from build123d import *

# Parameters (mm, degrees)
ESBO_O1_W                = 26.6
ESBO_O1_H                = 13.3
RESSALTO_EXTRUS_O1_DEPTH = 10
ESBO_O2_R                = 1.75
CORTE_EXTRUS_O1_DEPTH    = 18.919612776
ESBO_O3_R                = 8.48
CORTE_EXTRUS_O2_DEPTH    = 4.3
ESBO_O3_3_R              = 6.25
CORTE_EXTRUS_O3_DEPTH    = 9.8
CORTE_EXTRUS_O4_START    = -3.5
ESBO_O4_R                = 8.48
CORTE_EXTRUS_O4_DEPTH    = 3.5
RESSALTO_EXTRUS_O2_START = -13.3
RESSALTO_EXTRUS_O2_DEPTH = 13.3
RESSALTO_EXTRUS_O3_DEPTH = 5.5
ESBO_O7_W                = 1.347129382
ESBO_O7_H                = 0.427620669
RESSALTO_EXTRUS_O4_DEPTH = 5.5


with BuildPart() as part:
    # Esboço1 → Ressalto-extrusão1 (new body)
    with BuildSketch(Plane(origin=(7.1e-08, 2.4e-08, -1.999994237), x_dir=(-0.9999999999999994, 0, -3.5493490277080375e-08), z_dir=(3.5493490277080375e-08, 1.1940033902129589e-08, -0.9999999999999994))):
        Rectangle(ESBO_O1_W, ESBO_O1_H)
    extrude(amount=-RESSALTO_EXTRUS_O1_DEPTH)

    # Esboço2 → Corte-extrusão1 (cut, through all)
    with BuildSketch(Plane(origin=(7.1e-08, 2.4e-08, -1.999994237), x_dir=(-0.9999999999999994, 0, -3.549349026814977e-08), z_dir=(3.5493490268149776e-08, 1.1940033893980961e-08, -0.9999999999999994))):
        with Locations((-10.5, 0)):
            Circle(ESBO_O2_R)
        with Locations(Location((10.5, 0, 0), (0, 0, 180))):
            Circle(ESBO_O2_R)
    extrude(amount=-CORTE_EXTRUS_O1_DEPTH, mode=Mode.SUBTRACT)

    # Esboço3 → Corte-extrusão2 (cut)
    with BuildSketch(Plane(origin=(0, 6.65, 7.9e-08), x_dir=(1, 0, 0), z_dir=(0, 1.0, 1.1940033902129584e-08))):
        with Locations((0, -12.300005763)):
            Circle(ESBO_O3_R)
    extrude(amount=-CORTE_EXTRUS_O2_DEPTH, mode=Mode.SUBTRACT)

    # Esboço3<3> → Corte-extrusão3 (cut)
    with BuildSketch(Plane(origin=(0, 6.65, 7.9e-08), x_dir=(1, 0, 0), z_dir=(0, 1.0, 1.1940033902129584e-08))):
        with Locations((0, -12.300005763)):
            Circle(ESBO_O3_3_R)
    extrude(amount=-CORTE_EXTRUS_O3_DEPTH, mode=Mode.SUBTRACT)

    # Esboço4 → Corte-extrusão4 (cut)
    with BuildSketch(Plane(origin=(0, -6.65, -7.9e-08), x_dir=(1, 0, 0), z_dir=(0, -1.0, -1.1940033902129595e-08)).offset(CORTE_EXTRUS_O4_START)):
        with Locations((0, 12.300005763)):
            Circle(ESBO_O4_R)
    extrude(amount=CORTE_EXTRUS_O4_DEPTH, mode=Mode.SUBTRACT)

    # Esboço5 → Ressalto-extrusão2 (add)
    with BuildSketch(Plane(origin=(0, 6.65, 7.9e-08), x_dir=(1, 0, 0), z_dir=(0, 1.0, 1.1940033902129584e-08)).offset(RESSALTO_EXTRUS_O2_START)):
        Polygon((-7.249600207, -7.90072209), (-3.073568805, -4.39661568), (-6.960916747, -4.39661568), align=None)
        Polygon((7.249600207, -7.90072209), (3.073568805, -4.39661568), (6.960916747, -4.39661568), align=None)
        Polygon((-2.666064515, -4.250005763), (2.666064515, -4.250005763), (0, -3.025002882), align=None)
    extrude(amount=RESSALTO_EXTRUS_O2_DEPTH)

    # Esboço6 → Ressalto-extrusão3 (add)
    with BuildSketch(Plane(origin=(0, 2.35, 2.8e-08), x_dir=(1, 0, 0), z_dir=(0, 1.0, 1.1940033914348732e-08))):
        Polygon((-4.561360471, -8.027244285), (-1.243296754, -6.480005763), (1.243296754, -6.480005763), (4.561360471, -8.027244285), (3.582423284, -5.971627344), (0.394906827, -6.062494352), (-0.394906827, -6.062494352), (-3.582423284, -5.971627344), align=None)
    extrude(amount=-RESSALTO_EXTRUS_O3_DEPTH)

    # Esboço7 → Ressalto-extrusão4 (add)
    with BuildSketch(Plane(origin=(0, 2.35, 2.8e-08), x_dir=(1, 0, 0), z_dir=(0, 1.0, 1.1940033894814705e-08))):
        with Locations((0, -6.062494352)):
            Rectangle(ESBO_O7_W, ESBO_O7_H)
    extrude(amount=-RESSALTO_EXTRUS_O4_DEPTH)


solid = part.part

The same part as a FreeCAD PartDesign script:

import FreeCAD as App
import Part
import Sketcher
Q = App.Units.Quantity


def add_polygon(sketch, points):
    """Adds a closed chain of lines whose ends are joined by coincident constraints."""
    first, n = sketch.GeometryCount, len(points)
    for a, b in zip(points, points[1:] + points[:1]):
        sketch.addGeometry(Part.LineSegment(App.Vector(*a, 0), App.Vector(*b, 0)), False)
    for i in range(n):
        sketch.addConstraint(Sketcher.Constraint("Coincident", first + i, 2, first + (i + 1) % n, 1))

doc = App.newDocument("Part")
body = doc.addObject("PartDesign::Body", "Body")

sketch1 = body.newObject("Sketcher::SketchObject", "Sketch")
sketch1.AttachmentSupport = (doc.getObject("XY_Plane"), [""])
sketch1.MapMode = "FlatFace"
sketch1.AttachmentOffset = App.Placement(App.Vector(0, 0, -1.999994), App.Rotation())
add_polygon(sketch1, [(13, 7), (13, -7), (-13, -7), (-13, 7)])
sketch1.addConstraint([
    Sketcher.Constraint("Vertical", 0),
    Sketcher.Constraint("Horizontal", 1),
    Sketcher.Constraint("Vertical", 2),
    Sketcher.Constraint("Horizontal", 3),
    Sketcher.Constraint("Symmetric", 0, 2, 2, 2, -1, 1),
    Sketcher.Constraint("DistanceX", 1, 2, 1, 1, Q("26.6 mm")),
    Sketcher.Constraint("DistanceY", 0, 2, 0, 1, Q("13.3 mm")),
])
pad1 = body.newObject("PartDesign::Pad", "Pad")
pad1.Profile = sketch1
pad1.Length = 10

sketch2 = body.newObject("Sketcher::SketchObject", "Sketch001")
sketch2.AttachmentSupport = (doc.getObject("XY_Plane"), [""])
sketch2.MapMode = "FlatFace"
sketch2.AttachmentOffset = App.Placement(App.Vector(0, 0, -1.999994), App.Rotation())
sketch2.addGeometry([
    Part.Circle(App.Vector(10.5, 0, 0), App.Vector(0, 0, 1), 1.8),
    Part.Circle(App.Vector(-10.5, 0, 0), App.Vector(0, 0, 1), 1.8),
], False)
sketch2.addConstraint([
    Sketcher.Constraint("Equal", 0, 1),
    Sketcher.Constraint("Symmetric", 0, 3, 1, 3, -1, 1),
    Sketcher.Constraint("PointOnObject", 0, 3, -1),
    Sketcher.Constraint("Diameter", 0, Q("3.5 mm")),
    Sketcher.Constraint("DistanceX", 1, 3, 0, 3, Q("21 mm")),
])
pocket1 = body.newObject("PartDesign::Pocket", "Pocket")
pocket1.Profile = sketch2
pocket1.Type = "ThroughAll"
pocket1.Reversed = True

sketch3 = body.newObject("Sketcher::SketchObject", "Sketch002")
sketch3.AttachmentSupport = (doc.getObject("XZ_Plane"), [""])
sketch3.MapMode = "FlatFace"
sketch3.AttachmentOffset = App.Placement(App.Vector(0, 0, -6.65), App.Rotation())
sketch3.addGeometry(Part.Circle(App.Vector(0, 12, 0), App.Vector(0, 0, 1), 8), False)
sketch3.addConstraint([
    Sketcher.Constraint("PointOnObject", 0, 3, -2),
    Sketcher.Constraint("Diameter", 0, Q("16.96 mm")),
    Sketcher.Constraint("DistanceY", -1, 1, 0, 3, Q("12.300006 mm")),
])
pocket2 = body.newObject("PartDesign::Pocket", "Pocket001")
pocket2.Profile = sketch3
pocket2.Length = 4.3
pocket2.Reversed = True

sketch4 = body.newObject("Sketcher::SketchObject", "Sketch003")
sketch4.AttachmentSupport = (doc.getObject("XZ_Plane"), [""])
sketch4.MapMode = "FlatFace"
sketch4.AttachmentOffset = App.Placement(App.Vector(0, 0, -6.65), App.Rotation())
sketch4.addGeometry(Part.Circle(App.Vector(0, 12, 0), App.Vector(0, 0, 1), 6), False)
sketch4.addConstraint([
    Sketcher.Constraint("PointOnObject", 0, 3, -2),
    Sketcher.Constraint("Diameter", 0, Q("12.5 mm")),
    Sketcher.Constraint("DistanceY", -1, 1, 0, 3, Q("12.300006 mm")),
])
pocket3 = body.newObject("PartDesign::Pocket", "Pocket002")
pocket3.Profile = sketch4
pocket3.Length = 9.8
pocket3.Reversed = True

sketch5 = body.newObject("Sketcher::SketchObject", "Sketch004")
sketch5.AttachmentSupport = (doc.getObject("XZ_Plane"), [""])
sketch5.MapMode = "FlatFace"
sketch5.AttachmentOffset = App.Placement(App.Vector(0, 0, 3.15), App.Rotation())
sketch5.addGeometry(Part.Circle(App.Vector(0, 12, 0), App.Vector(0, 0, 1), 8), False)
sketch5.addConstraint([
    Sketcher.Constraint("PointOnObject", 0, 3, -2),
    Sketcher.Constraint("Diameter", 0, Q("16.96 mm")),
    Sketcher.Constraint("DistanceY", -1, 1, 0, 3, Q("12.300006 mm")),
])
pocket4 = body.newObject("PartDesign::Pocket", "Pocket003")
pocket4.Profile = sketch5
pocket4.Length = 3.5
pocket4.Reversed = True

sketch6 = body.newObject("Sketcher::SketchObject", "Sketch005")
sketch6.AttachmentSupport = (doc.getObject("XZ_Plane"), [""])
sketch6.MapMode = "FlatFace"
sketch6.AttachmentOffset = App.Placement(App.Vector(0, 0, 6.65), App.Rotation())
add_polygon(sketch6, [(-7.2, 7.9), (-3.1, 4.4), (-7, 4.4)])
add_polygon(sketch6, [(3.1, 4.4), (7.2, 7.9), (7, 4.4)])
add_polygon(sketch6, [(-2.7, 4.3), (2.7, 4.3), (0, 3)])
sketch6.addConstraint([
    Sketcher.Constraint("Horizontal", 1),
    Sketcher.Constraint("Horizontal", 5),
    Sketcher.Constraint("Horizontal", 6),
    Sketcher.Constraint("Symmetric", 2, 2, 3, 2, -2),
    Sketcher.Constraint("Symmetric", 1, 2, 4, 2, -2),
    Sketcher.Constraint("PointOnObject", 7, 2, -2),
    Sketcher.Constraint("Equal", 1, 5),
    Sketcher.Constraint("Equal", 7, 8),
    Sketcher.Constraint("Angle", 0, Q("-40 deg")),
    Sketcher.Constraint("DistanceX", 6, 1, 6, 2, Q("5.332129 mm")),
    Sketcher.Constraint("DistanceX", 2, 2, -1, 1, Q("7.2496 mm")),
    Sketcher.Constraint("Distance", 0, Q("5.451422 mm")),
    Sketcher.Constraint("Distance", 7, Q("2.93403 mm")),
    Sketcher.Constraint("DistanceX", 1, 2, 1, 1, Q("3.887348 mm")),
    Sketcher.Constraint("DistanceY", 6, 2, 5, 2, Q("0.14661 mm")),
    Sketcher.Constraint("DistanceY", -1, 1, 0, 2, Q("4.396616 mm")),
])
pad2 = body.newObject("PartDesign::Pad", "Pad001")
pad2.Profile = sketch6
pad2.Length = 13.3
pad2.Reversed = True

sketch7 = body.newObject("Sketcher::SketchObject", "Sketch006")
sketch7.AttachmentSupport = (doc.getObject("XZ_Plane"), [""])
sketch7.MapMode = "FlatFace"
sketch7.AttachmentOffset = App.Placement(App.Vector(0, 0, -2.35), App.Rotation())
add_polygon(sketch7, [(-4.6, 8), (-1.2, 6.5), (1.2, 6.5), (4.6, 8), (3.6, 6), (0.4, 6.1), (-0.4, 6.1), (-3.6, 6)])
sketch7.addConstraint([
    Sketcher.Constraint("Horizontal", 1),
    Sketcher.Constraint("Horizontal", 5),
    Sketcher.Constraint("Symmetric", 3, 2, 6, 2, -2),
    Sketcher.Constraint("Symmetric", 2, 2, 7, 2, -2),
    Sketcher.Constraint("Equal", 0, 2),
    Sketcher.Constraint("Equal", 4, 6),
    Sketcher.Constraint("Angle", 0, Q("-25 deg")),
    Sketcher.Constraint("Distance", 0, Q("3.661078 mm")),
    Sketcher.Constraint("Distance", 4, Q("3.188811 mm")),
    Sketcher.Constraint("DistanceX", 1, 1, 1, 2, Q("2.486594 mm")),
    Sketcher.Constraint("DistanceX", 5, 2, 5, 1, Q("0.789814 mm")),
    Sketcher.Constraint("DistanceY", 3, 2, 1, 2, Q("0.508378 mm")),
    Sketcher.Constraint("DistanceX", 0, 2, 3, 2, Q("4.82572 mm")),
    Sketcher.Constraint("DistanceY", -1, 1, 0, 2, Q("6.480006 mm")),
])
pad3 = body.newObject("PartDesign::Pad", "Pad002")
pad3.Profile = sketch7
pad3.Length = 5.5

sketch8 = body.newObject("Sketcher::SketchObject", "Sketch007")
sketch8.AttachmentSupport = (doc.getObject("XZ_Plane"), [""])
sketch8.MapMode = "FlatFace"
sketch8.AttachmentOffset = App.Placement(App.Vector(0, 0, -2.35), App.Rotation())
add_polygon(sketch8, [(-0.67, 5.85), (-0.67, 6.28), (0.67, 6.28), (0.67, 5.85)])
sketch8.addConstraint([
    Sketcher.Constraint("Vertical", 0),
    Sketcher.Constraint("Horizontal", 1),
    Sketcher.Constraint("Vertical", 2),
    Sketcher.Constraint("Horizontal", 3),
    Sketcher.Constraint("DistanceX", 1, 1, 1, 2, Q("1.347129 mm")),
    Sketcher.Constraint("DistanceY", 0, 1, 0, 2, Q("0.427621 mm")),
    Sketcher.Constraint("DistanceX", 0, 2, -1, 1, Q("0.673565 mm")),
    Sketcher.Constraint("DistanceY", -1, 1, 0, 2, Q("6.276305 mm")),
])
pad4 = body.newObject("PartDesign::Pad", "Pad003")
pad4.Profile = sketch8
pad4.Length = 5.5

doc.recompute()
